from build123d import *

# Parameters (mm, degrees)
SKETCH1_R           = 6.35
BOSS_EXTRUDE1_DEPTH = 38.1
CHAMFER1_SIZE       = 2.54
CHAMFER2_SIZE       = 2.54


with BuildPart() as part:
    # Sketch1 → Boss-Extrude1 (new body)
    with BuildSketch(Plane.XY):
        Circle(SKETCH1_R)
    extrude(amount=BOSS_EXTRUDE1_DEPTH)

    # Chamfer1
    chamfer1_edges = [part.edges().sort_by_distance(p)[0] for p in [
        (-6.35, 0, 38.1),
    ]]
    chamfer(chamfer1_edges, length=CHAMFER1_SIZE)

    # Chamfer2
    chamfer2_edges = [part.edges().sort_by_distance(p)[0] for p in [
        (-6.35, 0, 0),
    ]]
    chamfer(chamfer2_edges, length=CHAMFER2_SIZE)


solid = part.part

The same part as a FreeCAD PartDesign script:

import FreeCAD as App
import Part
import Sketcher
from FreeCAD import Vector
Q = App.Units.Quantity


def edges_at(feature, points):
    """Names of the edges that pass closest to the given points."""
    edges = feature.Shape.Edges
    near = lambda p: min(range(len(edges)), key=lambda i: edges[i].distToShape(Part.Vertex(*p))[0])
    return sorted({f"Edge{near(p) + 1}" for p in points})

doc = App.newDocument("Part")
body = doc.addObject("PartDesign::Body", "Body")

# Sketch on XY plane
sketch1 = body.newObject("Sketcher::SketchObject", "Sketch")
sketch1.AttachmentSupport = (doc.getObject("XY_Plane"), [""])
sketch1.MapMode = "FlatFace"
sketch1.addGeometry(Part.Circle(Vector(0, 0, 0), Vector(0, 0, 1), 6), False)
sketch1.addConstraint(Sketcher.Constraint("Coincident", 0, 3, -1, 1))
sketch1.addConstraint(Sketcher.Constraint("Diameter", 0, Q("0.5 in")))
pad1 = body.newObject("PartDesign::Pad", "Pad")
pad1.Profile = sketch1
pad1.Length = Q("1.5 in")
doc.recompute()

chamfer = body.newObject("PartDesign::Chamfer", "Chamfer")
chamfer.Base = (pad1, edges_at(pad1, [(-6.35, 0, 38.1)]))
chamfer.Size = Q("0.1 in")
doc.recompute()

chamfer2 = body.newObject("PartDesign::Chamfer", "Chamfer001")
chamfer2.Base = (chamfer, edges_at(chamfer, [(-6.35, 0, 0)]))
chamfer2.Size = Q("0.1 in")

doc.recompute()
